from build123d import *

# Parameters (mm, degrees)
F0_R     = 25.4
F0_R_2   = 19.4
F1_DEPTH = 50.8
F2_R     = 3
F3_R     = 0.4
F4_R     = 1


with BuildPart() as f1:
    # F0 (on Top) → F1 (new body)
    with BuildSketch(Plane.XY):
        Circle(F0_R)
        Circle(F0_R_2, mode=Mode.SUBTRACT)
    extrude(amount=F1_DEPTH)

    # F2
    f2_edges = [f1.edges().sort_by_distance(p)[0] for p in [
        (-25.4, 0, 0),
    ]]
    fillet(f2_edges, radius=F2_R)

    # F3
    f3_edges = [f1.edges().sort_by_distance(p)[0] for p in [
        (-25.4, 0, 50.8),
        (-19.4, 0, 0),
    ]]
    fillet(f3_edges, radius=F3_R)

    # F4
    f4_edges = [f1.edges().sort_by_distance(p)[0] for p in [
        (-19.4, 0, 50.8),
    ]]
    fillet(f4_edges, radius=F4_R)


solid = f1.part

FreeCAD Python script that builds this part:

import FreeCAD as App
import Part
import Sketcher

V = App.Vector


def edges_at(feature, points):
    """Names of the edges that pass closest to the given points."""
    edges = feature.Shape.Edges
    near = lambda p: min(range(len(edges)), key=lambda i: edges[i].distToShape(Part.Vertex(*p))[0])
    return sorted({f"Edge{near(p) + 1}" for p in points})

doc = App.newDocument("Part")
body = doc.addObject("PartDesign::Body", "Body")

# Sketch on XY plane
sketch1 = body.newObject("Sketcher::SketchObject", "Sketch")
sketch1.AttachmentSupport = (doc.getObject("XY_Plane"), [""])
sketch1.MapMode = "FlatFace"
sketch1.addGeometry(Part.Circle(V(0, 0, 0), V(0, 0, 1), 25), False)
sketch1.addGeometry(Part.Circle(V(0, 0, 0), V(0, 0, 1), 19), False)
sketch1.addConstraint(Sketcher.Constraint("Coincident", 0, 3, -1, 1))
sketch1.addConstraint(Sketcher.Constraint("Coincident", 1, 3, -1, 1))
sketch1.addConstraint(Sketcher.Constraint("Diameter", 0, 50.8))
sketch1.addConstraint(Sketcher.Constraint("Diameter", 1, 38.8))
pad1 = body.newObject("PartDesign::Pad", "Pad")
pad1.Profile = sketch1
pad1.Length = 50.8
doc.recompute()

fillet = body.newObject("PartDesign::Fillet", "Fillet")
fillet.Base = (pad1, edges_at(pad1, [(-25.4, 0, 0)]))
fillet.Radius = 3
doc.recompute()

fillet2 = body.newObject("PartDesign::Fillet", "Fillet001")
fillet2.Base = (fillet, edges_at(fillet, [(-25.4, 0, 50.8), (-19.4, 0, 0)]))
fillet2.Radius = 0.4
doc.recompute()

fillet3 = body.newObject("PartDesign::Fillet", "Fillet002")
fillet3.Base = (fillet2, edges_at(fillet2, [(-19.4, 0, 50.8)]))
fillet3.Radius = 1

doc.recompute()
